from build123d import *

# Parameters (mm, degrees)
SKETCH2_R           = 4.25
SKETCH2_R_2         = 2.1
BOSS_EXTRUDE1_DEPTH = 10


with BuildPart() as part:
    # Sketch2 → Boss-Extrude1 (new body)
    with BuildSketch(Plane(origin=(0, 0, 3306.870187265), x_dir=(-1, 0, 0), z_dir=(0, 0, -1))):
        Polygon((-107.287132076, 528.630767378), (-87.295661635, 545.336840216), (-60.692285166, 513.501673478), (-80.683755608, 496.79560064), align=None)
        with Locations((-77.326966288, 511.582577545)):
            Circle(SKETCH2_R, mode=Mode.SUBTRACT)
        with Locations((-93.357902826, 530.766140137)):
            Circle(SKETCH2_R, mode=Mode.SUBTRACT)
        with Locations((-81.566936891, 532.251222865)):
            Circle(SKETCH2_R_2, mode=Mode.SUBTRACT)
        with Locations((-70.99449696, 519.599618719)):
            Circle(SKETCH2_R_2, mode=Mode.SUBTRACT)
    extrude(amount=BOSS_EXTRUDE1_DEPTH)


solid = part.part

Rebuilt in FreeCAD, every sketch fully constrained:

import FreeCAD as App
import Part
import Sketcher


def add_polygon(sketch, points):
    """Adds a closed chain of lines whose ends are joined by coincident constraints."""
    first, n = sketch.GeometryCount, len(points)
    for a, b in zip(points, points[1:] + points[:1]):
        sketch.addGeometry(Part.LineSegment(App.Vector(*a, 0), App.Vector(*b, 0)), False)
    for i in range(n):
        sketch.addConstraint(Sketcher.Constraint("Coincident", first + i, 2, first + (i + 1) % n, 1))

doc = App.newDocument("Part")
params = doc.addObject("Spreadsheet::Sheet", "Params")
for row, (alias, value) in enumerate([
    ("sketch1_diameter", "8.5 mm"),
    ("sketch1_diameter2", "4.2 mm"),
    ("pad1_length", "10 mm"),
], start=1):
    params.set(f"A{row}", alias)
    params.set(f"B{row}", "=" + value)
    params.setAlias(f"B{row}", alias)

body = doc.addObject("PartDesign::Body", "Body")

sketch1 = doc.addObject("Sketcher::SketchObject", "Sketch")
body.addObject(sketch1)
sketch1.AttachmentSupport = (doc.XY_Plane, [""])
sketch1.MapMode = "FlatFace"
sketch1.AttachmentOffset = App.Placement(App.Vector(0, 0, 3306.870187), App.Rotation())
add_polygon(sketch1, [(87.3, 545.3), (107.3, 528.6), (80.7, 496.8), (60.7, 513.5)])
sketch1.addGeometry(Part.Circle(App.Vector(77.3, 511.6, 0), App.Vector(0, 0, 1), 4.2), False)
sketch1.addGeometry(Part.Circle(App.Vector(71, 519.6, 0), App.Vector(0, 0, 1), 2.1), False)
sketch1.addGeometry(Part.Circle(App.Vector(81.6, 532.3, 0), App.Vector(0, 0, 1), 2.1), False)
sketch1.addGeometry(Part.Circle(App.Vector(93.4, 530.8, 0), App.Vector(0, 0, 1), 4.2), False)
sketch1.addConstraint([
    Sketcher.Constraint("Equal", 5, 6),
    Sketcher.Constraint("Equal", 4, 7),
    Sketcher.Constraint("Perpendicular", 0, 1),
    Sketcher.Constraint("Perpendicular", 1, 2),
    Sketcher.Constraint("Perpendicular", 2, 3),
    Sketcher.Constraint("Diameter", 4, 8.5),
    Sketcher.Constraint("Diameter", 5, 4.2),
    Sketcher.Constraint("DistanceY", -1, 1, 1, 2, 496.795601),
    Sketcher.Constraint("DistanceY", 7, 3, 3, 2, 14.5707),
    Sketcher.Constraint("Distance", 1, 41.487558),
    Sketcher.Constraint("DistanceY", -1, 1, 5, 3, 519.599619),
    Sketcher.Constraint("DistanceY", -1, 1, 7, 3, 530.76614),
    Sketcher.Constraint("DistanceX", -1, 1, 3, 2, 87.295662),
    Sketcher.Constraint("DistanceX", 5, 3, 4, 3, 6.332469),
    Sketcher.Constraint("DistanceY", 4, 3, 5, 3, 8.017041),
    Sketcher.Constraint("DistanceX", 5, 3, 6, 3, 10.57244),
    Sketcher.Constraint("DistanceX", 7, 3, 0, 2, 13.929229),
    Sketcher.Constraint("DistanceY", 4, 3, 0, 2, 17.04819),
    Sketcher.Constraint("DistanceX", 4, 3, 1, 2, 3.356789),
    Sketcher.Constraint("DistanceY", 2, 2, 6, 3, 18.749549),
])
sketch1.setExpression("Constraints[9]", "Params.sketch1_diameter")
sketch1.setExpression("Constraints[10]", "Params.sketch1_diameter2")
pad1 = doc.addObject("PartDesign::Pad", "Pad")
body.addObject(pad1)
pad1.Profile = sketch1
pad1.setExpression("Length", "Params.pad1_length")
pad1.Reversed = True

doc.recompute()
